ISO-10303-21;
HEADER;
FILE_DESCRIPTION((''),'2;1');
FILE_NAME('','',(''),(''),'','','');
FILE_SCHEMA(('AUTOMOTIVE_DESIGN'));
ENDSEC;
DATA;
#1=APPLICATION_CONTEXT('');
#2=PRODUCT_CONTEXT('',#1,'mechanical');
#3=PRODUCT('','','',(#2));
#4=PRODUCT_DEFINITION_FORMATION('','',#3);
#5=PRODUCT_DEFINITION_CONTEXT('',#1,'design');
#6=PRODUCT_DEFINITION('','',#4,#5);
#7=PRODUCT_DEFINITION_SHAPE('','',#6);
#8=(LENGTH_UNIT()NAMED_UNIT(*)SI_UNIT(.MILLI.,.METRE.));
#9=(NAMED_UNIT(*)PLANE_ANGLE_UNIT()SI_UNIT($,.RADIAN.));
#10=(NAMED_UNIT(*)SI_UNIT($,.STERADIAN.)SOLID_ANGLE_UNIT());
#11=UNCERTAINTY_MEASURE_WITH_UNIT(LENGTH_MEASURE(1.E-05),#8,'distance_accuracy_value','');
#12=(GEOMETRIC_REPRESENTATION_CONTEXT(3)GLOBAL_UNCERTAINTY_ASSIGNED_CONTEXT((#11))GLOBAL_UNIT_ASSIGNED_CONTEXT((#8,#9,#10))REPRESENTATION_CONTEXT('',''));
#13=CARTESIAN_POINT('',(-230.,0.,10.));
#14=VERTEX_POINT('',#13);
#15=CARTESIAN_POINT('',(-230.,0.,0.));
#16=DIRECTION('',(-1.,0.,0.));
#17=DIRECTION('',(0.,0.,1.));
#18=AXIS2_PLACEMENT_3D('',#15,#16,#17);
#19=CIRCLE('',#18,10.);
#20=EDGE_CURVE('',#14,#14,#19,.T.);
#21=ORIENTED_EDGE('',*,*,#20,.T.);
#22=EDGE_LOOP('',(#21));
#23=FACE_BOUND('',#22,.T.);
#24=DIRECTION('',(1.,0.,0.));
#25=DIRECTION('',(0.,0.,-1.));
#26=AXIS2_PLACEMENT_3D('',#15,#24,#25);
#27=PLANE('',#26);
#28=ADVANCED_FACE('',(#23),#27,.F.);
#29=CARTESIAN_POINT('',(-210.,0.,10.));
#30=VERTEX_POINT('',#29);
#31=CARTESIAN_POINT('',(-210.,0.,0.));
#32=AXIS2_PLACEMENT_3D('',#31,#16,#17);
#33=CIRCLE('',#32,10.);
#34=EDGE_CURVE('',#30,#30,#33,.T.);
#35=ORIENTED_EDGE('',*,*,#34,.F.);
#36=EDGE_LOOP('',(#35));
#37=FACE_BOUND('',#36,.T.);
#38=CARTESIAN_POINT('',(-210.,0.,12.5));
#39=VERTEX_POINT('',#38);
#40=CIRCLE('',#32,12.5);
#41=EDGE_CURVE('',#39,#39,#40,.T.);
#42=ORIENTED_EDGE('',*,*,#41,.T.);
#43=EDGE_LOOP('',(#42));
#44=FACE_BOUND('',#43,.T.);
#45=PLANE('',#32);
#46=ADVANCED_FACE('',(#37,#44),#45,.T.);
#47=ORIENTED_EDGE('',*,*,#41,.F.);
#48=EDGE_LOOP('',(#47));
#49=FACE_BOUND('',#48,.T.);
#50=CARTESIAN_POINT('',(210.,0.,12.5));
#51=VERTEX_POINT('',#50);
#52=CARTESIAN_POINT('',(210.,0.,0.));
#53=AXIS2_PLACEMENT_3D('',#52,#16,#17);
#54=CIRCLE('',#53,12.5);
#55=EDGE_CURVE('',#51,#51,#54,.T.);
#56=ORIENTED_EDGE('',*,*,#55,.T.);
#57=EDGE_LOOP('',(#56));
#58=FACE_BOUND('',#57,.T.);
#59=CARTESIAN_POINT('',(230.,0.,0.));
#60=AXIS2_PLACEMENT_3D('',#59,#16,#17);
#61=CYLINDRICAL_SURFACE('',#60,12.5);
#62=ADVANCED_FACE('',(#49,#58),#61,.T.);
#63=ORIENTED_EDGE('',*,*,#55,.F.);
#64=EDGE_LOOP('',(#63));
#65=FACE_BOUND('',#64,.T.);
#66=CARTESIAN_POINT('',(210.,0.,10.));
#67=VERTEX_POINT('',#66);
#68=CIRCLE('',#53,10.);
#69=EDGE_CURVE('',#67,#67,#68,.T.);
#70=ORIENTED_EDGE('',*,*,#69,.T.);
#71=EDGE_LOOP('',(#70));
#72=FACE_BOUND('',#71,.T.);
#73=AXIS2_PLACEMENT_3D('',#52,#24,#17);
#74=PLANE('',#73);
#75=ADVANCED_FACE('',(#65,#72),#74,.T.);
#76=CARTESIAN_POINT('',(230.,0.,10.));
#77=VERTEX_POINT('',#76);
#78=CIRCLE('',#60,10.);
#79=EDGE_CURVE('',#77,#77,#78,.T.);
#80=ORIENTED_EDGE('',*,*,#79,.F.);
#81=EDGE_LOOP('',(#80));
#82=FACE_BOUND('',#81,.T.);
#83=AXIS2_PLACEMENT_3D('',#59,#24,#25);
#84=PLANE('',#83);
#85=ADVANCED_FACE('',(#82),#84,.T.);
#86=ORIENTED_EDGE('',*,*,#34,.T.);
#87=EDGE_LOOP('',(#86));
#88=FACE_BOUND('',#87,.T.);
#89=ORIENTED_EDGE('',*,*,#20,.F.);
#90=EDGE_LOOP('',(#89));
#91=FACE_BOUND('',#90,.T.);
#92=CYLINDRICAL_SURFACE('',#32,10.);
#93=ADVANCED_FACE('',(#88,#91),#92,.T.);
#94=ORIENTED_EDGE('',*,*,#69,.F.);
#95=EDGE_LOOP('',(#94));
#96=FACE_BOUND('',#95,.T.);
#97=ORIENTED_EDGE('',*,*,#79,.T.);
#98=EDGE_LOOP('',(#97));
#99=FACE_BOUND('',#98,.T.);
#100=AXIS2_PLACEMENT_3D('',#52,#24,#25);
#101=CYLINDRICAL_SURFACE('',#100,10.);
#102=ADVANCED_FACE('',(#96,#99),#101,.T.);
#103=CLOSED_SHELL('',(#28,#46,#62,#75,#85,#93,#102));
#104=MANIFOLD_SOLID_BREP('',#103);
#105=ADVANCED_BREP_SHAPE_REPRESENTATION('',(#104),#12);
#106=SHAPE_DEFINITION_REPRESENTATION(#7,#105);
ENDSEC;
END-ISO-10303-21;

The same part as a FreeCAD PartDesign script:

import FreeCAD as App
import Part
import Sketcher

V = App.Vector
Q = App.Units.Quantity

doc = App.newDocument("Part")
params = doc.addObject("Spreadsheet::Sheet", "Params")
for row, (alias, value) in enumerate([
    ("sketch1_diameter", "25 mm"),
    ("pad1_length", "460 mm"),
    ("sketch2_diameter", "25 mm"),
    ("sketch2_diameter2", "20 mm"),
    ("pocket1_length", "20 mm"),
], start=1):
    params.set(f"A{row}", alias)
    params.set(f"B{row}", "=" + value)
    params.setAlias(f"B{row}", alias)

body = doc.addObject("PartDesign::Body", "Body")

# Sketch on YZ plane
sketch1 = doc.addObject("Sketcher::SketchObject", "Sketch")
body.addObject(sketch1)
sketch1.AttachmentSupport = (doc.YZ_Plane, [""])
sketch1.MapMode = "FlatFace"
sketch1.addGeometry(Part.Circle(V(0, 0, 0), V(0, 0, 1), 12), False)
sketch1.addConstraint([
    Sketcher.Constraint("Coincident", 0, 3, -1, 1),
    Sketcher.Constraint("Diameter", 0, Q("25 mm")),
])
sketch1.setExpression("Constraints[1]", "Params.sketch1_diameter")
pad1 = doc.addObject("PartDesign::Pad", "Pad")
body.addObject(pad1)
pad1.Profile = sketch1
pad1.setExpression("Length", "Params.pad1_length")
pad1.Midplane = True

# Sketch on YZ plane
sketch2 = doc.addObject("Sketcher::SketchObject", "Sketch001")
body.addObject(sketch2)
sketch2.AttachmentSupport = (doc.YZ_Plane, [""])
sketch2.MapMode = "FlatFace"
sketch2.AttachmentOffset = App.Placement(V(0, 0, -230), App.Rotation())
sketch2.addGeometry([
    Part.Circle(V(0, 0, 0), V(0, 0, 1), 12),
    Part.Circle(V(0, 0, 0), V(0, 0, 1), 10),
], False)
sketch2.addConstraint([
    Sketcher.Constraint("Coincident", 0, 3, -1, 1),
    Sketcher.Constraint("Coincident", 1, 3, -1, 1),
    Sketcher.Constraint("Diameter", 0, Q("25 mm")),
    Sketcher.Constraint("Diameter", 1, Q("20 mm")),
])
sketch2.setExpression("Constraints[2]", "Params.sketch2_diameter")
sketch2.setExpression("Constraints[3]", "Params.sketch2_diameter2")
pocket1 = doc.addObject("PartDesign::Pocket", "Pocket")
body.addObject(pocket1)
pocket1.Profile = sketch2
pocket1.setExpression("Length", "Params.pocket1_length")
pocket1.Reversed = True
doc.recompute()

mirrored = doc.addObject("PartDesign::Mirrored", "Mirrored")
body.addObject(mirrored)
mirrored.Originals = [pocket1]
mirrored.MirrorPlane = (doc.YZ_Plane, [""])
body.Tip = mirrored

doc.recompute()
